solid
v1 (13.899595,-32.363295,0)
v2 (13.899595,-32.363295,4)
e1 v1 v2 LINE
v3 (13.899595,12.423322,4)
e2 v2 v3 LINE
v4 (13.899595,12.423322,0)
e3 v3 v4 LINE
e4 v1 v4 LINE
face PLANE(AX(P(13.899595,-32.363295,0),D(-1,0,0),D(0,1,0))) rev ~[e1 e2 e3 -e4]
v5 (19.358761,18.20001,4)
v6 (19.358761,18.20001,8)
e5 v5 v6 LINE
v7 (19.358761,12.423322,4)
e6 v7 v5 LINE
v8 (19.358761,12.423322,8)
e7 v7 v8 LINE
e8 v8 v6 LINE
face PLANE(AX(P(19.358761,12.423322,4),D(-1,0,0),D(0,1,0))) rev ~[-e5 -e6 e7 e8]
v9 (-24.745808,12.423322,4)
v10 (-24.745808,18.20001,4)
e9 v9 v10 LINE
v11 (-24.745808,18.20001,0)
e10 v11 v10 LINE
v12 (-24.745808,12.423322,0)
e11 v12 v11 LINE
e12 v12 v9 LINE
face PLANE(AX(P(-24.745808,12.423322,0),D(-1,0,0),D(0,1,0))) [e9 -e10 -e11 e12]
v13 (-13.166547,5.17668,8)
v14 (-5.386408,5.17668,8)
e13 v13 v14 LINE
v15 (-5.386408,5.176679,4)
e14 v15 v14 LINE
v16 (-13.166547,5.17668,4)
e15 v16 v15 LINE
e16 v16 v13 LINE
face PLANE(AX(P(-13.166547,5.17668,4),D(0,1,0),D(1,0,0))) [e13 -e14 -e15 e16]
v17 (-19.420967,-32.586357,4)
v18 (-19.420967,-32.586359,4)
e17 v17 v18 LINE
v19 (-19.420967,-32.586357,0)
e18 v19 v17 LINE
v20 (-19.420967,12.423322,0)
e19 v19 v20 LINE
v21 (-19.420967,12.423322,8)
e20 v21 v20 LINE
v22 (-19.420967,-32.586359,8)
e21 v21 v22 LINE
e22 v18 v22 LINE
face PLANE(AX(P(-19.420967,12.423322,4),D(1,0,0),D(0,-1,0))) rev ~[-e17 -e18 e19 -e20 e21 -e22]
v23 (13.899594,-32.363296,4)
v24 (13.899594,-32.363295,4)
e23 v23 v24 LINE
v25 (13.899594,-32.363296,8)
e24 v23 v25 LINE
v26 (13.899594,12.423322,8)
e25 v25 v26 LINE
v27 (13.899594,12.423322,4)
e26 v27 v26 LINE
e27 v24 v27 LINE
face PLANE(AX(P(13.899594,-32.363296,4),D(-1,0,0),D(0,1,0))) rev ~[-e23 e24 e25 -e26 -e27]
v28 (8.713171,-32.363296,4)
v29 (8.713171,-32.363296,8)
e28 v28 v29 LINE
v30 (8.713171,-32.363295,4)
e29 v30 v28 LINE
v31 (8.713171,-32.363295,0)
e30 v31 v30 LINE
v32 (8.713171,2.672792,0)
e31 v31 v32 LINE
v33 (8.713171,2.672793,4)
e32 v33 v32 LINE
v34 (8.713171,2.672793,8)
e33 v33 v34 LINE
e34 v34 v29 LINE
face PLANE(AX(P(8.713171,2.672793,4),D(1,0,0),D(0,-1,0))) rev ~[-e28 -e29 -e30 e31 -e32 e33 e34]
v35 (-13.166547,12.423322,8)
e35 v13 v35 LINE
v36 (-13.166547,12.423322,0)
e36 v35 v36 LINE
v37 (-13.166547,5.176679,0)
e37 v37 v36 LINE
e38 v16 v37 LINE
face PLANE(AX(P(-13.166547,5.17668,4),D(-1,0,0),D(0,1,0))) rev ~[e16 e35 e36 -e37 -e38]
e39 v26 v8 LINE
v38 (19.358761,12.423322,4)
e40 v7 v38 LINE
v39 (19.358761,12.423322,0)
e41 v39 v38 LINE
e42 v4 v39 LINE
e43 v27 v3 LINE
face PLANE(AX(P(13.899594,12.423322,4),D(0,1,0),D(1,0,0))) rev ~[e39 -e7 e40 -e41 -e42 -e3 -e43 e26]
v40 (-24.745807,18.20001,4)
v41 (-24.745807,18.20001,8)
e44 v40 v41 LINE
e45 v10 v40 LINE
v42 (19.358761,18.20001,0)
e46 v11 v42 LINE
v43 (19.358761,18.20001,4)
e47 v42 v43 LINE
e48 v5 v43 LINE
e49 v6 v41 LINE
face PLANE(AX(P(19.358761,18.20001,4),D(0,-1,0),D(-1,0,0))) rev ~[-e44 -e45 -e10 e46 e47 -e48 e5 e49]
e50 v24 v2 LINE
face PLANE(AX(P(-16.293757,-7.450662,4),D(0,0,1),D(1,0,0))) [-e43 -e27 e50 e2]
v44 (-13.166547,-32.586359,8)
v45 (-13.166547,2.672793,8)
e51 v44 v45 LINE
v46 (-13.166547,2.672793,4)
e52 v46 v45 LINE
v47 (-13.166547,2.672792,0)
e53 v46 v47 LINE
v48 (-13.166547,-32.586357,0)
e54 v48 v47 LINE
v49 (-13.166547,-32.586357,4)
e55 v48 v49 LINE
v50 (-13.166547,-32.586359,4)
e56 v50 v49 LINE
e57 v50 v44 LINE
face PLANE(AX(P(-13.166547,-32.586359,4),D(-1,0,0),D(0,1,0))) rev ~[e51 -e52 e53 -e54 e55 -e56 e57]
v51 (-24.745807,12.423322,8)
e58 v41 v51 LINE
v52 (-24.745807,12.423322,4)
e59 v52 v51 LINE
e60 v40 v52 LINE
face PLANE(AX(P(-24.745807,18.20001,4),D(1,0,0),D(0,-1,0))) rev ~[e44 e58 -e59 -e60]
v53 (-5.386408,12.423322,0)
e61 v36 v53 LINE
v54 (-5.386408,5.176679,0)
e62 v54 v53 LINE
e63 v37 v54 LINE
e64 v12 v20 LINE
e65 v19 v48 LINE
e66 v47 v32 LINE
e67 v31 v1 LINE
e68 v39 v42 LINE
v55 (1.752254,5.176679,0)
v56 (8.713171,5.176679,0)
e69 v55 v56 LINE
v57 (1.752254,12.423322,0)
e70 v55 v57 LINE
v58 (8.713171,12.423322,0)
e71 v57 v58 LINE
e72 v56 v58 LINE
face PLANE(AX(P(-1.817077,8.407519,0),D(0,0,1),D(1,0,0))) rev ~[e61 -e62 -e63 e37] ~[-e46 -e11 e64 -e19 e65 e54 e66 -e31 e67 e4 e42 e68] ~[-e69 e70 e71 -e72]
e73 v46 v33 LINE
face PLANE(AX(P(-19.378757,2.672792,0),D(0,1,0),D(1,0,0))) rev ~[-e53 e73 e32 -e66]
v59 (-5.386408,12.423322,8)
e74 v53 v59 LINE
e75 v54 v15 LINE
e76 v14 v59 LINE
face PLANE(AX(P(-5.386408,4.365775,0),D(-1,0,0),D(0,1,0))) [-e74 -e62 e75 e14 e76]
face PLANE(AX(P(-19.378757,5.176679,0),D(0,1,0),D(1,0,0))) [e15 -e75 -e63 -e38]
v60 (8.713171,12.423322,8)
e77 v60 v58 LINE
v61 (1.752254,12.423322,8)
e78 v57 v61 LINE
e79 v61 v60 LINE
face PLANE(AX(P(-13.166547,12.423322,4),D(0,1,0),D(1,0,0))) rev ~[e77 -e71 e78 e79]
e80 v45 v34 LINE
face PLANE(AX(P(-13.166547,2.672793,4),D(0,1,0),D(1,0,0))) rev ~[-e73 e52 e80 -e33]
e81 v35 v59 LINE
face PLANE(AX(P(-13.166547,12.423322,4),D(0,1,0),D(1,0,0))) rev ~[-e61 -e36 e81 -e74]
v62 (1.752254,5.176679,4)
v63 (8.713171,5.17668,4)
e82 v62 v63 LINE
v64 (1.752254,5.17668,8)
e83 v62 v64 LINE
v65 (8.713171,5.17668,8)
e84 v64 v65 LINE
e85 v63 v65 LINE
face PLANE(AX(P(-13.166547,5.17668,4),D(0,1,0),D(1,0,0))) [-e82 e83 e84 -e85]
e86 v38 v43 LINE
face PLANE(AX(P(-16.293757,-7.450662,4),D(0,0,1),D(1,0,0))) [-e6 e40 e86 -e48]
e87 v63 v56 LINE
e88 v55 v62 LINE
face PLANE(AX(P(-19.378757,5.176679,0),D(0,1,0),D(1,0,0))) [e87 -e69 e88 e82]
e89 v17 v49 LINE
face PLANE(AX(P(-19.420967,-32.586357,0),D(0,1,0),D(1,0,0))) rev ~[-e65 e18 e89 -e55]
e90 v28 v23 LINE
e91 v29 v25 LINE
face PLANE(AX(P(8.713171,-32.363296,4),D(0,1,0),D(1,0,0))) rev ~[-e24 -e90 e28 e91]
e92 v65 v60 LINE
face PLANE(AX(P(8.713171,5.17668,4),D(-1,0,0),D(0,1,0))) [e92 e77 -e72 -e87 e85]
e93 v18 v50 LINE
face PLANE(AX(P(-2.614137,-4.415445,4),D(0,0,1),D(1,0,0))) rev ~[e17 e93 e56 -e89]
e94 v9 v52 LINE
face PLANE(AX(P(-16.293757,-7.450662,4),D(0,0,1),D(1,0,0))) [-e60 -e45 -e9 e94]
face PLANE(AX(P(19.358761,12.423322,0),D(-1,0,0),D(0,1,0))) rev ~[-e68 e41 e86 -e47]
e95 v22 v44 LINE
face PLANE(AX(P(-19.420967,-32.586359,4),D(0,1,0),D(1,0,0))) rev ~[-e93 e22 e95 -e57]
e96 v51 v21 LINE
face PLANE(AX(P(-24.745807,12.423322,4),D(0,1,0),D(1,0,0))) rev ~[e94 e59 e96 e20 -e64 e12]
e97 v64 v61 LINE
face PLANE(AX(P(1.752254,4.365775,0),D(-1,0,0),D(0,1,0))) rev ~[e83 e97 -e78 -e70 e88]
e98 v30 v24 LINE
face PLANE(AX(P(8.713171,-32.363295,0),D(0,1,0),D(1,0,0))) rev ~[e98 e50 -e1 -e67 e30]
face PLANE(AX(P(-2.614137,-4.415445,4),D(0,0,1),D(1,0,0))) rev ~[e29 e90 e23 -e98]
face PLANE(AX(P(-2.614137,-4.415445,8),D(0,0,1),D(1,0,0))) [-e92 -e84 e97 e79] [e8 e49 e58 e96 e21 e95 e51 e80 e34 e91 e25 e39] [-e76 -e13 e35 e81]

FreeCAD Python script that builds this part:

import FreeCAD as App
import Part
import Sketcher

V = App.Vector


def add_polygon(sketch, points):
    """Adds a closed chain of lines whose ends are joined by coincident constraints."""
    first, n = sketch.GeometryCount, len(points)
    for a, b in zip(points, points[1:] + points[:1]):
        sketch.addGeometry(Part.LineSegment(App.Vector(*a, 0), App.Vector(*b, 0)), False)
    for i in range(n):
        sketch.addConstraint(Sketcher.Constraint("Coincident", first + i, 2, first + (i + 1) % n, 1))

doc = App.newDocument("Part")
body = doc.addObject("PartDesign::Body", "Body")

# Sketch on XY plane
sketch1 = doc.addObject("Sketcher::SketchObject", "Sketch")
body.addObject(sketch1)
sketch1.AttachmentSupport = (doc.XY_Plane, [""])
sketch1.MapMode = "FlatFace"
add_polygon(sketch1, [(8.713171, 17.426409), (8.713171, -32.363295), (13.899595, -32.363295), (13.899595, 17.426409)])  # lines 0-3
sketch1.addConstraint(Sketcher.Constraint("Vertical", 0))
sketch1.addConstraint(Sketcher.Constraint("Horizontal", 1))
sketch1.addConstraint(Sketcher.Constraint("Vertical", 2))
sketch1.addConstraint(Sketcher.Constraint("Horizontal", 3))
sketch1.addConstraint(Sketcher.Constraint("DistanceX", 1, 1, 1, 2, 5.186424))
sketch1.addConstraint(Sketcher.Constraint("DistanceY", 0, 2, 0, 1, 49.789705))
sketch1.addConstraint(Sketcher.Constraint("DistanceX", -1, 1, 0, 2, 8.713171))
sketch1.addConstraint(Sketcher.Constraint("DistanceY", -1, 1, 2, 2, 17.426409))
pad1 = doc.addObject("PartDesign::Pad", "Pad")
body.addObject(pad1)
pad1.Profile = sketch1
pad1.Length = 4

# Sketch on XY plane
sketch2 = doc.addObject("Sketcher::SketchObject", "Sketch001")
body.addObject(sketch2)
sketch2.AttachmentSupport = (doc.XY_Plane, [""])
sketch2.MapMode = "FlatFace"
add_polygon(sketch2, [(-24.745808, 18.20001), (-24.745808, 12.423322), (19.358761, 12.423322), (19.358761, 18.20001)])  # lines 0-3
sketch2.addConstraint(Sketcher.Constraint("Vertical", 0))
sketch2.addConstraint(Sketcher.Constraint("Horizontal", 1))
sketch2.addConstraint(Sketcher.Constraint("Vertical", 2))
sketch2.addConstraint(Sketcher.Constraint("Horizontal", 3))
sketch2.addConstraint(Sketcher.Constraint("DistanceX", 1, 1, 1, 2, 44.104569))
sketch2.addConstraint(Sketcher.Constraint("DistanceY", 0, 2, 0, 1, 5.776688))
sketch2.addConstraint(Sketcher.Constraint("DistanceX", -1, 1, 1, 2, 19.358761))
sketch2.addConstraint(Sketcher.Constraint("DistanceY", -1, 1, 2, 2, 18.20001))
pad2 = doc.addObject("PartDesign::Pad", "Pad001")
body.addObject(pad2)
pad2.Profile = sketch2
pad2.Length = 4

# Sketch on XY plane
sketch3 = doc.addObject("Sketcher::SketchObject", "Sketch002")
body.addObject(sketch3)
sketch3.AttachmentSupport = (doc.XY_Plane, [""])
sketch3.MapMode = "FlatFace"
add_polygon(sketch3, [(-19.420967, 17.685033), (-19.420967, -32.586357), (-13.166547, -32.586357), (-13.166547, 17.685033)])  # lines 0-3
sketch3.addConstraint(Sketcher.Constraint("Vertical", 0))
sketch3.addConstraint(Sketcher.Constraint("Horizontal", 1))
sketch3.addConstraint(Sketcher.Constraint("Vertical", 2))
sketch3.addConstraint(Sketcher.Constraint("Horizontal", 3))
sketch3.addConstraint(Sketcher.Constraint("DistanceX", 1, 1, 1, 2, 6.25442))
sketch3.addConstraint(Sketcher.Constraint("DistanceY", 0, 2, 0, 1, 50.271391))
sketch3.addConstraint(Sketcher.Constraint("DistanceX", 0, 2, -1, 1, 19.420967))
sketch3.addConstraint(Sketcher.Constraint("DistanceY", 0, 2, -1, 1, 32.586357))
pad3 = doc.addObject("PartDesign::Pad", "Pad002")
body.addObject(pad3)
pad3.Profile = sketch3
pad3.Length = 4

# Sketch on XY plane
sketch4 = doc.addObject("Sketcher::SketchObject", "Sketch003")
body.addObject(sketch4)
sketch4.AttachmentSupport = (doc.XY_Plane, [""])
sketch4.MapMode = "FlatFace"
add_polygon(sketch4, [(-19.378757, 5.176679), (-19.378757, 2.672792), (13.851142, 2.672792), (13.851142, 5.176679)])  # lines 0-3
sketch4.addConstraint(Sketcher.Constraint("Vertical", 0))
sketch4.addConstraint(Sketcher.Constraint("Horizontal", 1))
sketch4.addConstraint(Sketcher.Constraint("Vertical", 2))
sketch4.addConstraint(Sketcher.Constraint("Horizontal", 3))
sketch4.addConstraint(Sketcher.Constraint("DistanceX", 1, 1, 1, 2, 33.229899))
sketch4.addConstraint(Sketcher.Constraint("DistanceY", 0, 2, 0, 1, 2.503887))
sketch4.addConstraint(Sketcher.Constraint("DistanceX", -1, 1, 1, 2, 13.851142))
sketch4.addConstraint(Sketcher.Constraint("DistanceY", -1, 1, 2, 2, 5.176679))
pad4 = doc.addObject("PartDesign::Pad", "Pad003")
body.addObject(pad4)
pad4.Profile = sketch4
pad4.Length = 4

# Sketch on XY plane
sketch5 = doc.addObject("Sketcher::SketchObject", "Sketch004")
body.addObject(sketch5)
sketch5.AttachmentSupport = (doc.XY_Plane, [""])
sketch5.MapMode = "FlatFace"
sketch5.AttachmentOffset = App.Placement(V(0, 0, 4), App.Rotation())
add_polygon(sketch5, [(-13.166547, -32.586359), (-13.166547, 2.672793), (8.713171, 2.672793), (8.713171, -32.363296), (13.899594, -32.363296), (13.899594, 12.423322), (19.358761, 12.423322), (19.358761, 18.20001), (-24.745807, 18.20001), (-24.745807, 12.423322), (-19.420967, 12.423322), (-19.420967, -32.586359)])  # lines 0-11
add_polygon(sketch5, [(8.713171, 5.17668), (-13.166547, 5.17668), (-13.166547, 12.423322), (8.713171, 12.423322)])  # lines 12-15
sketch5.addConstraint(Sketcher.Constraint("Vertical", 0))
sketch5.addConstraint(Sketcher.Constraint("Horizontal", 1))
sketch5.addConstraint(Sketcher.Constraint("Vertical", 2))
sketch5.addConstraint(Sketcher.Constraint("Horizontal", 3))
sketch5.addConstraint(Sketcher.Constraint("Vertical", 4))
sketch5.addConstraint(Sketcher.Constraint("Horizontal", 5))
sketch5.addConstraint(Sketcher.Constraint("Vertical", 6))
sketch5.addConstraint(Sketcher.Constraint("Horizontal", 7))
sketch5.addConstraint(Sketcher.Constraint("Vertical", 8))
sketch5.addConstraint(Sketcher.Constraint("Horizontal", 9))
sketch5.addConstraint(Sketcher.Constraint("Vertical", 10))
sketch5.addConstraint(Sketcher.Constraint("Horizontal", 11))
sketch5.addConstraint(Sketcher.Constraint("Horizontal", 12))
sketch5.addConstraint(Sketcher.Constraint("Vertical", 13))
sketch5.addConstraint(Sketcher.Constraint("Horizontal", 14))
sketch5.addConstraint(Sketcher.Constraint("Vertical", 15))
sketch5.addConstraint(Sketcher.Constraint("Horizontal", 5, 2, 8, 2))
sketch5.addConstraint(Sketcher.Constraint("Horizontal", 9, 2, 13, 2))
sketch5.addConstraint(Sketcher.Constraint("Vertical", 11, 2, 12, 2))
sketch5.addConstraint(Sketcher.Constraint("Vertical", 2, 2, 14, 2))
sketch5.addConstraint(Sketcher.Constraint("DistanceX", 1, 1, 1, 2, 21.879718))
sketch5.addConstraint(Sketcher.Constraint("DistanceX", 9, 1, 9, 2, 5.32484))
sketch5.addConstraint(Sketcher.Constraint("DistanceX", 11, 1, 11, 2, 6.25442))
sketch5.addConstraint(Sketcher.Constraint("DistanceY", 2, 2, 2, 1, 35.036089))
sketch5.addConstraint(Sketcher.Constraint("DistanceY", 10, 2, 10, 1, 45.009681))
sketch5.addConstraint(Sketcher.Constraint("DistanceX", 7, 2, 4, 2, 38.645401))
sketch5.addConstraint(Sketcher.Constraint("DistanceX", 5, 1, 5, 2, 5.459167))
sketch5.addConstraint(Sketcher.Constraint("DistanceY", 0, 1, 0, 2, 35.259152))
sketch5.addConstraint(Sketcher.Constraint("DistanceY", 6, 1, 6, 2, 5.776688))
sketch5.addConstraint(Sketcher.Constraint("DistanceY", 13, 1, 13, 2, 7.246642))
sketch5.addConstraint(Sketcher.Constraint("DistanceX", -1, 1, 1, 2, 8.713171))
sketch5.addConstraint(Sketcher.Constraint("DistanceY", -1, 1, 6, 2, 18.20001))
pad5 = doc.addObject("PartDesign::Pad", "Pad004")
body.addObject(pad5)
pad5.Profile = sketch5
pad5.Length = 4

# Sketch on XY plane
sketch6 = doc.addObject("Sketcher::SketchObject", "Sketch005")
body.addObject(sketch6)
sketch6.AttachmentSupport = (doc.XY_Plane, [""])
sketch6.MapMode = "FlatFace"
add_polygon(sketch6, [(-5.386408, 12.449262), (-5.386408, 4.365775), (1.752254, 4.365775), (1.752254, 12.449262)])  # lines 0-3
sketch6.addConstraint(Sketcher.Constraint("Vertical", 0))
sketch6.addConstraint(Sketcher.Constraint("Horizontal", 1))
sketch6.addConstraint(Sketcher.Constraint("Vertical", 2))
sketch6.addConstraint(Sketcher.Constraint("Horizontal", 3))
sketch6.addConstraint(Sketcher.Constraint("DistanceX", 1, 1, 1, 2, 7.138662))
sketch6.addConstraint(Sketcher.Constraint("DistanceY", 0, 2, 0, 1, 8.083487))
sketch6.addConstraint(Sketcher.Constraint("DistanceX", 0, 2, -1, 1, 5.386408))
sketch6.addConstraint(Sketcher.Constraint("DistanceY", -1, 1, 0, 2, 4.365775))
pad6 = doc.addObject("PartDesign::Pad", "Pad005")
body.addObject(pad6)
pad6.Profile = sketch6
pad6.Length = 8

doc.recompute()
